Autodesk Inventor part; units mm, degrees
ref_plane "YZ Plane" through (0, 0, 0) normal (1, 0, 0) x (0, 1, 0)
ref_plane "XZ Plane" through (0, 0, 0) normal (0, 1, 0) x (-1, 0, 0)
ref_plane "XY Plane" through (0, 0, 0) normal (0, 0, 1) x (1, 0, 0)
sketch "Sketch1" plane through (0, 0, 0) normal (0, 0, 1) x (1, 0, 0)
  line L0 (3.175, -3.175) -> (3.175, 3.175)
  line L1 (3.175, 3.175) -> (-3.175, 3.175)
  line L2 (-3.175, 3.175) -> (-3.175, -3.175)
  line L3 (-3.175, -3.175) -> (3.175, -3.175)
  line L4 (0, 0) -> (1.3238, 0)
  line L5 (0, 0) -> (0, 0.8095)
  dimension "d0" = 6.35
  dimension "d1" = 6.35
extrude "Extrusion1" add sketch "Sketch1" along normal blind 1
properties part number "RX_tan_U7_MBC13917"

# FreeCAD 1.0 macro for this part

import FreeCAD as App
import Part
import Sketcher


def add_polygon(sketch, points):
    """Adds a closed chain of lines whose ends are joined by coincident constraints."""
    first, n = sketch.GeometryCount, len(points)
    for a, b in zip(points, points[1:] + points[:1]):
        sketch.addGeometry(Part.LineSegment(App.Vector(*a, 0), App.Vector(*b, 0)), False)
    for i in range(n):
        sketch.addConstraint(Sketcher.Constraint("Coincident", first + i, 2, first + (i + 1) % n, 1))

doc = App.newDocument("Part")
body = doc.addObject("PartDesign::Body", "Body")

# Sketch on XY plane
sketch1 = body.newObject("Sketcher::SketchObject", "Sketch")
sketch1.AttachmentSupport = (doc.getObject("XY_Plane"), [""])
sketch1.MapMode = "FlatFace"
add_polygon(sketch1, [(-3, -3), (3, -3), (3, 3), (-3, 3)])  # lines 0-3
sketch1.addConstraint(Sketcher.Constraint("Horizontal", 0))
sketch1.addConstraint(Sketcher.Constraint("Vertical", 1))
sketch1.addConstraint(Sketcher.Constraint("Horizontal", 2))
sketch1.addConstraint(Sketcher.Constraint("Vertical", 3))
sketch1.addConstraint(Sketcher.Constraint("Symmetric", 0, 2, 2, 2, -1, 1))
sketch1.addConstraint(Sketcher.Constraint("Equal", 2, 1))
sketch1.addConstraint(Sketcher.Constraint("DistanceX", 0, 1, 0, 2, 6.35))
pad1 = body.newObject("PartDesign::Pad", "Pad")
pad1.Profile = sketch1
pad1.Length = 1

doc.recompute()
